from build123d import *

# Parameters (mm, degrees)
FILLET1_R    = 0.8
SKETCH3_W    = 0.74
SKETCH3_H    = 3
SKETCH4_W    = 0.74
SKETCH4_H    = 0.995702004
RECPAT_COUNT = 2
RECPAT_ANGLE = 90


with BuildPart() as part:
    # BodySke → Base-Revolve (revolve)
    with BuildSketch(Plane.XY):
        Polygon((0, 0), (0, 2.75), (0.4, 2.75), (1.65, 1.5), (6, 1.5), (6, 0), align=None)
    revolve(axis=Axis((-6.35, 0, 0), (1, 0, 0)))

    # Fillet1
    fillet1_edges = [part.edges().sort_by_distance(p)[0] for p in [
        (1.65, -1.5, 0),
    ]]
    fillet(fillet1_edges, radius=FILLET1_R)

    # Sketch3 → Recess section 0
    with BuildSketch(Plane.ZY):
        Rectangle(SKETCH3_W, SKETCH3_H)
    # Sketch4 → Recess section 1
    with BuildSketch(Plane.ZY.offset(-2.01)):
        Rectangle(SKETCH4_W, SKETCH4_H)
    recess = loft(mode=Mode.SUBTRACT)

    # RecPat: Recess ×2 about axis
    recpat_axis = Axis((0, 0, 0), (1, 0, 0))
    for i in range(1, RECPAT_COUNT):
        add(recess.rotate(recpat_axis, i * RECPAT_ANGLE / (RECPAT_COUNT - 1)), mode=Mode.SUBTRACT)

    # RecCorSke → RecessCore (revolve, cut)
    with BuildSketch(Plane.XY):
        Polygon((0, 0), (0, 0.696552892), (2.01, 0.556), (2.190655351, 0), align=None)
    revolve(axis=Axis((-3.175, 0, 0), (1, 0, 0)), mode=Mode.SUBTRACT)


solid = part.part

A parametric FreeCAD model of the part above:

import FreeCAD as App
import Part
import Sketcher

V = App.Vector
Q = App.Units.Quantity


def edges_at(feature, points):
    """Names of the edges that pass closest to the given points."""
    edges = feature.Shape.Edges
    near = lambda p: min(range(len(edges)), key=lambda i: edges[i].distToShape(Part.Vertex(*p))[0])
    return sorted({f"Edge{near(p) + 1}" for p in points})


def add_polygon(sketch, points):
    """Adds a closed chain of lines whose ends are joined by coincident constraints."""
    first, n = sketch.GeometryCount, len(points)
    for a, b in zip(points, points[1:] + points[:1]):
        sketch.addGeometry(Part.LineSegment(App.Vector(*a, 0), App.Vector(*b, 0)), False)
    for i in range(n):
        sketch.addConstraint(Sketcher.Constraint("Coincident", first + i, 2, first + (i + 1) % n, 1))

doc = App.newDocument("Part")
body = doc.addObject("PartDesign::Body", "Body")

sketch1 = body.newObject("Sketcher::SketchObject", "Sketch")
sketch1.AttachmentSupport = (doc.getObject("XY_Plane"), [""])
sketch1.MapMode = "FlatFace"
add_polygon(sketch1, [(0, 2.75), (0, 0), (6, 0), (6, 1.5), (1.65, 1.5), (0.4, 2.75)])
sketch1.addConstraint([
    Sketcher.Constraint("Vertical", 0),
    Sketcher.Constraint("Horizontal", 1),
    Sketcher.Constraint("Vertical", 2),
    Sketcher.Constraint("Horizontal", 3),
    Sketcher.Constraint("Horizontal", 5),
    Sketcher.Constraint("Coincident", 0, 2, -1, 1),
    Sketcher.Constraint("DistanceX", 1, 1, 1, 2, 6.0),
    Sketcher.Constraint("Angle", 4, Q("135 deg")),
    Sketcher.Constraint("DistanceX", 5, 2, 5, 1, 0.4),
    Sketcher.Constraint("DistanceY", 2, 1, 2, 2, 1.5),
    Sketcher.Constraint("DistanceX", 3, 2, 3, 1, 4.35),
])
revolution = body.newObject("PartDesign::Revolution", "Revolution")
revolution.Profile = sketch1
revolution.ReferenceAxis = (sketch1, ["H_Axis"])
revolution.Angle = 360
doc.recompute()

fillet = body.newObject("PartDesign::Fillet", "Fillet")
fillet.Base = (revolution, edges_at(revolution, [(1.65, -1.5, 0)]))
fillet.Radius = 0.8

sketch2 = body.newObject("Sketcher::SketchObject", "Sketch001")
sketch2.AttachmentSupport = (doc.getObject("YZ_Plane"), [""])
sketch2.MapMode = "FlatFace"
add_polygon(sketch2, [(1.5, -0.4), (-1.5, -0.4), (-1.5, 0.4), (1.5, 0.4)])
sketch2.addConstraint([
    Sketcher.Constraint("Horizontal", 0),
    Sketcher.Constraint("Vertical", 1),
    Sketcher.Constraint("Horizontal", 2),
    Sketcher.Constraint("Vertical", 3),
    Sketcher.Constraint("Symmetric", 0, 2, 2, 2, -1, 1),
    Sketcher.Constraint("DistanceX", 0, 2, 0, 1, 3.0),
    Sketcher.Constraint("DistanceY", 1, 1, 1, 2, 0.74),
])

sketch3 = body.newObject("Sketcher::SketchObject", "Sketch002")
sketch3.AttachmentSupport = (doc.getObject("YZ_Plane"), [""])
sketch3.MapMode = "FlatFace"
sketch3.AttachmentOffset = App.Placement(V(0, 0, 2.01), App.Rotation())
add_polygon(sketch3, [(0.5, -0.4), (-0.5, -0.4), (-0.5, 0.4), (0.5, 0.4)])
sketch3.addConstraint([
    Sketcher.Constraint("Horizontal", 0),
    Sketcher.Constraint("Vertical", 1),
    Sketcher.Constraint("Horizontal", 2),
    Sketcher.Constraint("Vertical", 3),
    Sketcher.Constraint("Symmetric", 0, 2, 2, 2, -1, 1),
    Sketcher.Constraint("DistanceY", 1, 1, 1, 2, 0.74),
    Sketcher.Constraint("DistanceX", 0, 2, 0, 1, 0.995702),
])

subtractiveloft = body.newObject("PartDesign::SubtractiveLoft", "SubtractiveLoft")
subtractiveloft.Profile = sketch2
subtractiveloft.Sections = [sketch3]
doc.recompute()

polarpattern = body.newObject("PartDesign::PolarPattern", "PolarPattern")
polarpattern.Originals = [subtractiveloft]
polarpattern.Axis = (doc.getObject("X_Axis"), [""])
polarpattern.Angle = 90
polarpattern.Occurrences = 2
body.Tip = polarpattern

sketch4 = body.newObject("Sketcher::SketchObject", "Sketch003")
sketch4.AttachmentSupport = (doc.getObject("XY_Plane"), [""])
sketch4.MapMode = "FlatFace"
add_polygon(sketch4, [(0, 0.7), (0, 0), (2.2, 0), (2, 0.6)])
sketch4.addConstraint([
    Sketcher.Constraint("Vertical", 0),
    Sketcher.Constraint("Horizontal", 1),
    Sketcher.Constraint("Coincident", 0, 2, -1, 1),
    Sketcher.Constraint("Angle", 2, Q("108 deg")),
    Sketcher.Constraint("Angle", 3, Q("176 deg")),
    Sketcher.Constraint("DistanceX", -1, 1, 2, 2, 2.01),
    Sketcher.Constraint("DistanceY", -1, 1, 2, 2, 0.556),
])
groove = body.newObject("PartDesign::Groove", "Groove")
groove.Profile = sketch4
groove.ReferenceAxis = (sketch4, ["H_Axis"])
groove.Angle = 360

doc.recompute()
